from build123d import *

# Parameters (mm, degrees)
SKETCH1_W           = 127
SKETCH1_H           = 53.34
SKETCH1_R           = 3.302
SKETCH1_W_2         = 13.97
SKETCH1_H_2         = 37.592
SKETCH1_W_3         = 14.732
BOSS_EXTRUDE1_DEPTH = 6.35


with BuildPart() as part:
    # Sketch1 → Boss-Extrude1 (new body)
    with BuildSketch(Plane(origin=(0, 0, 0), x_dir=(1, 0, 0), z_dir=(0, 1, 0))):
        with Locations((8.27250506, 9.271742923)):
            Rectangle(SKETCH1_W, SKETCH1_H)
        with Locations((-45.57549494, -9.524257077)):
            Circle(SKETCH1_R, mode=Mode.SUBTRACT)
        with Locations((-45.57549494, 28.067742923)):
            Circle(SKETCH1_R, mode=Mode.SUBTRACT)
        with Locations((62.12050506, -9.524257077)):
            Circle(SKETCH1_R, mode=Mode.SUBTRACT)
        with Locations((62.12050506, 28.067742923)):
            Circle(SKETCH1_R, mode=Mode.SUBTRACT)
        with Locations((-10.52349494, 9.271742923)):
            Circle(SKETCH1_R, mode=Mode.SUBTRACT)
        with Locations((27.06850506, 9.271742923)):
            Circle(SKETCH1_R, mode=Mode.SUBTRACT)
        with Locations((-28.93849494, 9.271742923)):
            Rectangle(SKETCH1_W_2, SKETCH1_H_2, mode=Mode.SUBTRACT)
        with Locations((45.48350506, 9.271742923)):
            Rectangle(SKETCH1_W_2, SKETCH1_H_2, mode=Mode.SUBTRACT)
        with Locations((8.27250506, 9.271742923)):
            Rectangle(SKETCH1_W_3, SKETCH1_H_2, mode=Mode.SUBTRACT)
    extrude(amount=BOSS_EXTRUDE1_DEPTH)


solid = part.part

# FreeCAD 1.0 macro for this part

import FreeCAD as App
import Part
import Sketcher

V = App.Vector
Q = App.Units.Quantity

doc = App.newDocument("Part")
body = doc.addObject("PartDesign::Body", "Body")

# Sketch on XZ plane
sketch1 = body.newObject("Sketcher::SketchObject", "Sketch")
sketch1.AttachmentSupport = (doc.getObject("XZ_Plane"), [""])
sketch1.MapMode = "FlatFace"
sketch1.addGeometry([
    Part.LineSegment(V(-55.2, -35.9, 0), V(-55.2, 17.4, 0)),  # 0
    Part.LineSegment(V(-55.2, 17.4, 0), V(71.8, 17.4, 0)),  # 1
    Part.LineSegment(V(71.8, 17.4, 0), V(71.8, -35.9, 0)),  # 2
    Part.LineSegment(V(71.8, -35.9, 0), V(-55.2, -35.9, 0)),  # 3
    Part.Circle(V(-45.6, 9.5, 0), V(0, 0, 1), 3.3),  # 4
    Part.LineSegment(V(-22, 9.5, 0), V(-35.9, 9.5, 0)),  # 5
    Part.LineSegment(V(-35.9, 9.5, 0), V(-35.9, -28.1, 0)),  # 6
    Part.LineSegment(V(-35.9, -28.1, 0), V(-22, -28.1, 0)),  # 7
    Part.LineSegment(V(-22, -28.1, 0), V(-22, 9.5, 0)),  # 8
    Part.Circle(V(-10.5, -9.3, 0), V(0, 0, 1), 3.3),  # 9
    Part.Circle(V(62.1, 9.5, 0), V(0, 0, 1), 3.3),  # 10
    Part.LineSegment(V(15.6, 9.5, 0), V(0.9, 9.5, 0)),  # 11
    Part.LineSegment(V(0.9, 9.5, 0), V(0.9, -28.1, 0)),  # 12
    Part.LineSegment(V(0.9, -28.1, 0), V(15.6, -28.1, 0)),  # 13
    Part.LineSegment(V(15.6, -28.1, 0), V(15.6, 9.5, 0)),  # 14
    Part.Circle(V(27.1, -9.3, 0), V(0, 0, 1), 3.3),  # 15
    Part.LineSegment(V(52.5, 9.5, 0), V(38.5, 9.5, 0)),  # 16
    Part.LineSegment(V(38.5, 9.5, 0), V(38.5, -28.1, 0)),  # 17
    Part.LineSegment(V(38.5, -28.1, 0), V(52.5, -28.1, 0)),  # 18
    Part.LineSegment(V(52.5, -28.1, 0), V(52.5, 9.5, 0)),  # 19
    Part.Circle(V(-45.6, -28.1, 0), V(0, 0, 1), 3.3),  # 20
    Part.Circle(V(62.1, -28.1, 0), V(0, 0, 1), 3.3),  # 21
], False)
sketch1.addConstraint([
    Sketcher.Constraint("Coincident", 0, 2, 1, 1),
    Sketcher.Constraint("Coincident", 1, 2, 2, 1),
    Sketcher.Constraint("Coincident", 2, 2, 3, 1),
    Sketcher.Constraint("Coincident", 3, 2, 0, 1),
    Sketcher.Constraint("Coincident", 5, 2, 6, 1),
    Sketcher.Constraint("Coincident", 6, 2, 7, 1),
    Sketcher.Constraint("Coincident", 7, 2, 8, 1),
    Sketcher.Constraint("Coincident", 8, 2, 5, 1),
    Sketcher.Constraint("Coincident", 11, 2, 12, 1),
    Sketcher.Constraint("Coincident", 12, 2, 13, 1),
    Sketcher.Constraint("Coincident", 13, 2, 14, 1),
    Sketcher.Constraint("Coincident", 14, 2, 11, 1),
    Sketcher.Constraint("Coincident", 16, 2, 17, 1),
    Sketcher.Constraint("Coincident", 17, 2, 18, 1),
    Sketcher.Constraint("Coincident", 18, 2, 19, 1),
    Sketcher.Constraint("Coincident", 19, 2, 16, 1),
    Sketcher.Constraint("Vertical", 0),
    Sketcher.Constraint("Horizontal", 1),
    Sketcher.Constraint("Vertical", 2),
    Sketcher.Constraint("Horizontal", 3),
    Sketcher.Constraint("Horizontal", 5),
    Sketcher.Constraint("Vertical", 6),
    Sketcher.Constraint("Horizontal", 7),
    Sketcher.Constraint("Vertical", 8),
    Sketcher.Constraint("Horizontal", 11),
    Sketcher.Constraint("Vertical", 12),
    Sketcher.Constraint("Horizontal", 13),
    Sketcher.Constraint("Vertical", 14),
    Sketcher.Constraint("Horizontal", 16),
    Sketcher.Constraint("Vertical", 17),
    Sketcher.Constraint("Horizontal", 18),
    Sketcher.Constraint("Vertical", 19),
    Sketcher.Constraint("Equal", 4, 9),
    Sketcher.Constraint("Equal", 9, 10),
    Sketcher.Constraint("Equal", 10, 15),
    Sketcher.Constraint("Equal", 15, 20),
    Sketcher.Constraint("Equal", 20, 21),
    Sketcher.Constraint("Horizontal", 4, 3, 10, 3),
    Sketcher.Constraint("Horizontal", 9, 3, 15, 3),
    Sketcher.Constraint("Horizontal", 20, 3, 21, 3),
    Sketcher.Constraint("Horizontal", 10, 3, 5, 2),
    Sketcher.Constraint("Horizontal", 21, 3, 6, 2),
    Sketcher.Constraint("Horizontal", 8, 2, 11, 2),
    Sketcher.Constraint("Horizontal", 7, 2, 12, 2),
    Sketcher.Constraint("Horizontal", 14, 2, 16, 2),
    Sketcher.Constraint("Horizontal", 13, 2, 17, 2),
    Sketcher.Constraint("Vertical", 4, 3, 20, 3),
    Sketcher.Constraint("Vertical", 10, 3, 21, 3),
    Sketcher.Constraint("Equal", 7, 16),
    Sketcher.Constraint("Diameter", 4, Q("0.26 in")),
    Sketcher.Constraint("DistanceX", 1, 1, 1, 2, Q("5 in")),
    Sketcher.Constraint("DistanceY", 0, 1, 0, 2, Q("2.1 in")),
    Sketcher.Constraint("DistanceX", 5, 2, 9, 3, Q("1 in")),
    Sketcher.Constraint("DistanceX", 15, 3, 18, 2, Q("1 in")),
    Sketcher.Constraint("DistanceX", 5, 2, 5, 1, Q("0.55 in")),
    Sketcher.Constraint("DistanceX", 11, 2, 11, 1, Q("0.58 in")),
    Sketcher.Constraint("DistanceY", 6, 2, 6, 1, Q("1.48 in")),
    Sketcher.Constraint("DistanceX", 8, 2, 11, 2, Q("0.9 in")),
    Sketcher.Constraint("DistanceX", 14, 2, 16, 2, Q("0.9 in")),
    Sketcher.Constraint("DistanceX", 4, 3, 9, 3, Q("1.38 in")),
    Sketcher.Constraint("DistanceY", 9, 3, 4, 3, Q("0.74 in")),
    Sketcher.Constraint("DistanceX", 9, 3, 10, 3, Q("2.86 in")),
    Sketcher.Constraint("DistanceX", 0, 2, 4, 3, Q("0.38 in")),
    Sketcher.Constraint("DistanceY", 4, 3, 0, 2, Q("0.31 in")),
    Sketcher.Constraint("DistanceX", 4, 3, -1, 1, 45.575495),
    Sketcher.Constraint("DistanceY", -1, 1, 4, 3, 9.524257),
])
pad1 = body.newObject("PartDesign::Pad", "Pad")
pad1.Profile = sketch1
pad1.Length = Q("0.25 in")
pad1.Reversed = True

doc.recompute()
